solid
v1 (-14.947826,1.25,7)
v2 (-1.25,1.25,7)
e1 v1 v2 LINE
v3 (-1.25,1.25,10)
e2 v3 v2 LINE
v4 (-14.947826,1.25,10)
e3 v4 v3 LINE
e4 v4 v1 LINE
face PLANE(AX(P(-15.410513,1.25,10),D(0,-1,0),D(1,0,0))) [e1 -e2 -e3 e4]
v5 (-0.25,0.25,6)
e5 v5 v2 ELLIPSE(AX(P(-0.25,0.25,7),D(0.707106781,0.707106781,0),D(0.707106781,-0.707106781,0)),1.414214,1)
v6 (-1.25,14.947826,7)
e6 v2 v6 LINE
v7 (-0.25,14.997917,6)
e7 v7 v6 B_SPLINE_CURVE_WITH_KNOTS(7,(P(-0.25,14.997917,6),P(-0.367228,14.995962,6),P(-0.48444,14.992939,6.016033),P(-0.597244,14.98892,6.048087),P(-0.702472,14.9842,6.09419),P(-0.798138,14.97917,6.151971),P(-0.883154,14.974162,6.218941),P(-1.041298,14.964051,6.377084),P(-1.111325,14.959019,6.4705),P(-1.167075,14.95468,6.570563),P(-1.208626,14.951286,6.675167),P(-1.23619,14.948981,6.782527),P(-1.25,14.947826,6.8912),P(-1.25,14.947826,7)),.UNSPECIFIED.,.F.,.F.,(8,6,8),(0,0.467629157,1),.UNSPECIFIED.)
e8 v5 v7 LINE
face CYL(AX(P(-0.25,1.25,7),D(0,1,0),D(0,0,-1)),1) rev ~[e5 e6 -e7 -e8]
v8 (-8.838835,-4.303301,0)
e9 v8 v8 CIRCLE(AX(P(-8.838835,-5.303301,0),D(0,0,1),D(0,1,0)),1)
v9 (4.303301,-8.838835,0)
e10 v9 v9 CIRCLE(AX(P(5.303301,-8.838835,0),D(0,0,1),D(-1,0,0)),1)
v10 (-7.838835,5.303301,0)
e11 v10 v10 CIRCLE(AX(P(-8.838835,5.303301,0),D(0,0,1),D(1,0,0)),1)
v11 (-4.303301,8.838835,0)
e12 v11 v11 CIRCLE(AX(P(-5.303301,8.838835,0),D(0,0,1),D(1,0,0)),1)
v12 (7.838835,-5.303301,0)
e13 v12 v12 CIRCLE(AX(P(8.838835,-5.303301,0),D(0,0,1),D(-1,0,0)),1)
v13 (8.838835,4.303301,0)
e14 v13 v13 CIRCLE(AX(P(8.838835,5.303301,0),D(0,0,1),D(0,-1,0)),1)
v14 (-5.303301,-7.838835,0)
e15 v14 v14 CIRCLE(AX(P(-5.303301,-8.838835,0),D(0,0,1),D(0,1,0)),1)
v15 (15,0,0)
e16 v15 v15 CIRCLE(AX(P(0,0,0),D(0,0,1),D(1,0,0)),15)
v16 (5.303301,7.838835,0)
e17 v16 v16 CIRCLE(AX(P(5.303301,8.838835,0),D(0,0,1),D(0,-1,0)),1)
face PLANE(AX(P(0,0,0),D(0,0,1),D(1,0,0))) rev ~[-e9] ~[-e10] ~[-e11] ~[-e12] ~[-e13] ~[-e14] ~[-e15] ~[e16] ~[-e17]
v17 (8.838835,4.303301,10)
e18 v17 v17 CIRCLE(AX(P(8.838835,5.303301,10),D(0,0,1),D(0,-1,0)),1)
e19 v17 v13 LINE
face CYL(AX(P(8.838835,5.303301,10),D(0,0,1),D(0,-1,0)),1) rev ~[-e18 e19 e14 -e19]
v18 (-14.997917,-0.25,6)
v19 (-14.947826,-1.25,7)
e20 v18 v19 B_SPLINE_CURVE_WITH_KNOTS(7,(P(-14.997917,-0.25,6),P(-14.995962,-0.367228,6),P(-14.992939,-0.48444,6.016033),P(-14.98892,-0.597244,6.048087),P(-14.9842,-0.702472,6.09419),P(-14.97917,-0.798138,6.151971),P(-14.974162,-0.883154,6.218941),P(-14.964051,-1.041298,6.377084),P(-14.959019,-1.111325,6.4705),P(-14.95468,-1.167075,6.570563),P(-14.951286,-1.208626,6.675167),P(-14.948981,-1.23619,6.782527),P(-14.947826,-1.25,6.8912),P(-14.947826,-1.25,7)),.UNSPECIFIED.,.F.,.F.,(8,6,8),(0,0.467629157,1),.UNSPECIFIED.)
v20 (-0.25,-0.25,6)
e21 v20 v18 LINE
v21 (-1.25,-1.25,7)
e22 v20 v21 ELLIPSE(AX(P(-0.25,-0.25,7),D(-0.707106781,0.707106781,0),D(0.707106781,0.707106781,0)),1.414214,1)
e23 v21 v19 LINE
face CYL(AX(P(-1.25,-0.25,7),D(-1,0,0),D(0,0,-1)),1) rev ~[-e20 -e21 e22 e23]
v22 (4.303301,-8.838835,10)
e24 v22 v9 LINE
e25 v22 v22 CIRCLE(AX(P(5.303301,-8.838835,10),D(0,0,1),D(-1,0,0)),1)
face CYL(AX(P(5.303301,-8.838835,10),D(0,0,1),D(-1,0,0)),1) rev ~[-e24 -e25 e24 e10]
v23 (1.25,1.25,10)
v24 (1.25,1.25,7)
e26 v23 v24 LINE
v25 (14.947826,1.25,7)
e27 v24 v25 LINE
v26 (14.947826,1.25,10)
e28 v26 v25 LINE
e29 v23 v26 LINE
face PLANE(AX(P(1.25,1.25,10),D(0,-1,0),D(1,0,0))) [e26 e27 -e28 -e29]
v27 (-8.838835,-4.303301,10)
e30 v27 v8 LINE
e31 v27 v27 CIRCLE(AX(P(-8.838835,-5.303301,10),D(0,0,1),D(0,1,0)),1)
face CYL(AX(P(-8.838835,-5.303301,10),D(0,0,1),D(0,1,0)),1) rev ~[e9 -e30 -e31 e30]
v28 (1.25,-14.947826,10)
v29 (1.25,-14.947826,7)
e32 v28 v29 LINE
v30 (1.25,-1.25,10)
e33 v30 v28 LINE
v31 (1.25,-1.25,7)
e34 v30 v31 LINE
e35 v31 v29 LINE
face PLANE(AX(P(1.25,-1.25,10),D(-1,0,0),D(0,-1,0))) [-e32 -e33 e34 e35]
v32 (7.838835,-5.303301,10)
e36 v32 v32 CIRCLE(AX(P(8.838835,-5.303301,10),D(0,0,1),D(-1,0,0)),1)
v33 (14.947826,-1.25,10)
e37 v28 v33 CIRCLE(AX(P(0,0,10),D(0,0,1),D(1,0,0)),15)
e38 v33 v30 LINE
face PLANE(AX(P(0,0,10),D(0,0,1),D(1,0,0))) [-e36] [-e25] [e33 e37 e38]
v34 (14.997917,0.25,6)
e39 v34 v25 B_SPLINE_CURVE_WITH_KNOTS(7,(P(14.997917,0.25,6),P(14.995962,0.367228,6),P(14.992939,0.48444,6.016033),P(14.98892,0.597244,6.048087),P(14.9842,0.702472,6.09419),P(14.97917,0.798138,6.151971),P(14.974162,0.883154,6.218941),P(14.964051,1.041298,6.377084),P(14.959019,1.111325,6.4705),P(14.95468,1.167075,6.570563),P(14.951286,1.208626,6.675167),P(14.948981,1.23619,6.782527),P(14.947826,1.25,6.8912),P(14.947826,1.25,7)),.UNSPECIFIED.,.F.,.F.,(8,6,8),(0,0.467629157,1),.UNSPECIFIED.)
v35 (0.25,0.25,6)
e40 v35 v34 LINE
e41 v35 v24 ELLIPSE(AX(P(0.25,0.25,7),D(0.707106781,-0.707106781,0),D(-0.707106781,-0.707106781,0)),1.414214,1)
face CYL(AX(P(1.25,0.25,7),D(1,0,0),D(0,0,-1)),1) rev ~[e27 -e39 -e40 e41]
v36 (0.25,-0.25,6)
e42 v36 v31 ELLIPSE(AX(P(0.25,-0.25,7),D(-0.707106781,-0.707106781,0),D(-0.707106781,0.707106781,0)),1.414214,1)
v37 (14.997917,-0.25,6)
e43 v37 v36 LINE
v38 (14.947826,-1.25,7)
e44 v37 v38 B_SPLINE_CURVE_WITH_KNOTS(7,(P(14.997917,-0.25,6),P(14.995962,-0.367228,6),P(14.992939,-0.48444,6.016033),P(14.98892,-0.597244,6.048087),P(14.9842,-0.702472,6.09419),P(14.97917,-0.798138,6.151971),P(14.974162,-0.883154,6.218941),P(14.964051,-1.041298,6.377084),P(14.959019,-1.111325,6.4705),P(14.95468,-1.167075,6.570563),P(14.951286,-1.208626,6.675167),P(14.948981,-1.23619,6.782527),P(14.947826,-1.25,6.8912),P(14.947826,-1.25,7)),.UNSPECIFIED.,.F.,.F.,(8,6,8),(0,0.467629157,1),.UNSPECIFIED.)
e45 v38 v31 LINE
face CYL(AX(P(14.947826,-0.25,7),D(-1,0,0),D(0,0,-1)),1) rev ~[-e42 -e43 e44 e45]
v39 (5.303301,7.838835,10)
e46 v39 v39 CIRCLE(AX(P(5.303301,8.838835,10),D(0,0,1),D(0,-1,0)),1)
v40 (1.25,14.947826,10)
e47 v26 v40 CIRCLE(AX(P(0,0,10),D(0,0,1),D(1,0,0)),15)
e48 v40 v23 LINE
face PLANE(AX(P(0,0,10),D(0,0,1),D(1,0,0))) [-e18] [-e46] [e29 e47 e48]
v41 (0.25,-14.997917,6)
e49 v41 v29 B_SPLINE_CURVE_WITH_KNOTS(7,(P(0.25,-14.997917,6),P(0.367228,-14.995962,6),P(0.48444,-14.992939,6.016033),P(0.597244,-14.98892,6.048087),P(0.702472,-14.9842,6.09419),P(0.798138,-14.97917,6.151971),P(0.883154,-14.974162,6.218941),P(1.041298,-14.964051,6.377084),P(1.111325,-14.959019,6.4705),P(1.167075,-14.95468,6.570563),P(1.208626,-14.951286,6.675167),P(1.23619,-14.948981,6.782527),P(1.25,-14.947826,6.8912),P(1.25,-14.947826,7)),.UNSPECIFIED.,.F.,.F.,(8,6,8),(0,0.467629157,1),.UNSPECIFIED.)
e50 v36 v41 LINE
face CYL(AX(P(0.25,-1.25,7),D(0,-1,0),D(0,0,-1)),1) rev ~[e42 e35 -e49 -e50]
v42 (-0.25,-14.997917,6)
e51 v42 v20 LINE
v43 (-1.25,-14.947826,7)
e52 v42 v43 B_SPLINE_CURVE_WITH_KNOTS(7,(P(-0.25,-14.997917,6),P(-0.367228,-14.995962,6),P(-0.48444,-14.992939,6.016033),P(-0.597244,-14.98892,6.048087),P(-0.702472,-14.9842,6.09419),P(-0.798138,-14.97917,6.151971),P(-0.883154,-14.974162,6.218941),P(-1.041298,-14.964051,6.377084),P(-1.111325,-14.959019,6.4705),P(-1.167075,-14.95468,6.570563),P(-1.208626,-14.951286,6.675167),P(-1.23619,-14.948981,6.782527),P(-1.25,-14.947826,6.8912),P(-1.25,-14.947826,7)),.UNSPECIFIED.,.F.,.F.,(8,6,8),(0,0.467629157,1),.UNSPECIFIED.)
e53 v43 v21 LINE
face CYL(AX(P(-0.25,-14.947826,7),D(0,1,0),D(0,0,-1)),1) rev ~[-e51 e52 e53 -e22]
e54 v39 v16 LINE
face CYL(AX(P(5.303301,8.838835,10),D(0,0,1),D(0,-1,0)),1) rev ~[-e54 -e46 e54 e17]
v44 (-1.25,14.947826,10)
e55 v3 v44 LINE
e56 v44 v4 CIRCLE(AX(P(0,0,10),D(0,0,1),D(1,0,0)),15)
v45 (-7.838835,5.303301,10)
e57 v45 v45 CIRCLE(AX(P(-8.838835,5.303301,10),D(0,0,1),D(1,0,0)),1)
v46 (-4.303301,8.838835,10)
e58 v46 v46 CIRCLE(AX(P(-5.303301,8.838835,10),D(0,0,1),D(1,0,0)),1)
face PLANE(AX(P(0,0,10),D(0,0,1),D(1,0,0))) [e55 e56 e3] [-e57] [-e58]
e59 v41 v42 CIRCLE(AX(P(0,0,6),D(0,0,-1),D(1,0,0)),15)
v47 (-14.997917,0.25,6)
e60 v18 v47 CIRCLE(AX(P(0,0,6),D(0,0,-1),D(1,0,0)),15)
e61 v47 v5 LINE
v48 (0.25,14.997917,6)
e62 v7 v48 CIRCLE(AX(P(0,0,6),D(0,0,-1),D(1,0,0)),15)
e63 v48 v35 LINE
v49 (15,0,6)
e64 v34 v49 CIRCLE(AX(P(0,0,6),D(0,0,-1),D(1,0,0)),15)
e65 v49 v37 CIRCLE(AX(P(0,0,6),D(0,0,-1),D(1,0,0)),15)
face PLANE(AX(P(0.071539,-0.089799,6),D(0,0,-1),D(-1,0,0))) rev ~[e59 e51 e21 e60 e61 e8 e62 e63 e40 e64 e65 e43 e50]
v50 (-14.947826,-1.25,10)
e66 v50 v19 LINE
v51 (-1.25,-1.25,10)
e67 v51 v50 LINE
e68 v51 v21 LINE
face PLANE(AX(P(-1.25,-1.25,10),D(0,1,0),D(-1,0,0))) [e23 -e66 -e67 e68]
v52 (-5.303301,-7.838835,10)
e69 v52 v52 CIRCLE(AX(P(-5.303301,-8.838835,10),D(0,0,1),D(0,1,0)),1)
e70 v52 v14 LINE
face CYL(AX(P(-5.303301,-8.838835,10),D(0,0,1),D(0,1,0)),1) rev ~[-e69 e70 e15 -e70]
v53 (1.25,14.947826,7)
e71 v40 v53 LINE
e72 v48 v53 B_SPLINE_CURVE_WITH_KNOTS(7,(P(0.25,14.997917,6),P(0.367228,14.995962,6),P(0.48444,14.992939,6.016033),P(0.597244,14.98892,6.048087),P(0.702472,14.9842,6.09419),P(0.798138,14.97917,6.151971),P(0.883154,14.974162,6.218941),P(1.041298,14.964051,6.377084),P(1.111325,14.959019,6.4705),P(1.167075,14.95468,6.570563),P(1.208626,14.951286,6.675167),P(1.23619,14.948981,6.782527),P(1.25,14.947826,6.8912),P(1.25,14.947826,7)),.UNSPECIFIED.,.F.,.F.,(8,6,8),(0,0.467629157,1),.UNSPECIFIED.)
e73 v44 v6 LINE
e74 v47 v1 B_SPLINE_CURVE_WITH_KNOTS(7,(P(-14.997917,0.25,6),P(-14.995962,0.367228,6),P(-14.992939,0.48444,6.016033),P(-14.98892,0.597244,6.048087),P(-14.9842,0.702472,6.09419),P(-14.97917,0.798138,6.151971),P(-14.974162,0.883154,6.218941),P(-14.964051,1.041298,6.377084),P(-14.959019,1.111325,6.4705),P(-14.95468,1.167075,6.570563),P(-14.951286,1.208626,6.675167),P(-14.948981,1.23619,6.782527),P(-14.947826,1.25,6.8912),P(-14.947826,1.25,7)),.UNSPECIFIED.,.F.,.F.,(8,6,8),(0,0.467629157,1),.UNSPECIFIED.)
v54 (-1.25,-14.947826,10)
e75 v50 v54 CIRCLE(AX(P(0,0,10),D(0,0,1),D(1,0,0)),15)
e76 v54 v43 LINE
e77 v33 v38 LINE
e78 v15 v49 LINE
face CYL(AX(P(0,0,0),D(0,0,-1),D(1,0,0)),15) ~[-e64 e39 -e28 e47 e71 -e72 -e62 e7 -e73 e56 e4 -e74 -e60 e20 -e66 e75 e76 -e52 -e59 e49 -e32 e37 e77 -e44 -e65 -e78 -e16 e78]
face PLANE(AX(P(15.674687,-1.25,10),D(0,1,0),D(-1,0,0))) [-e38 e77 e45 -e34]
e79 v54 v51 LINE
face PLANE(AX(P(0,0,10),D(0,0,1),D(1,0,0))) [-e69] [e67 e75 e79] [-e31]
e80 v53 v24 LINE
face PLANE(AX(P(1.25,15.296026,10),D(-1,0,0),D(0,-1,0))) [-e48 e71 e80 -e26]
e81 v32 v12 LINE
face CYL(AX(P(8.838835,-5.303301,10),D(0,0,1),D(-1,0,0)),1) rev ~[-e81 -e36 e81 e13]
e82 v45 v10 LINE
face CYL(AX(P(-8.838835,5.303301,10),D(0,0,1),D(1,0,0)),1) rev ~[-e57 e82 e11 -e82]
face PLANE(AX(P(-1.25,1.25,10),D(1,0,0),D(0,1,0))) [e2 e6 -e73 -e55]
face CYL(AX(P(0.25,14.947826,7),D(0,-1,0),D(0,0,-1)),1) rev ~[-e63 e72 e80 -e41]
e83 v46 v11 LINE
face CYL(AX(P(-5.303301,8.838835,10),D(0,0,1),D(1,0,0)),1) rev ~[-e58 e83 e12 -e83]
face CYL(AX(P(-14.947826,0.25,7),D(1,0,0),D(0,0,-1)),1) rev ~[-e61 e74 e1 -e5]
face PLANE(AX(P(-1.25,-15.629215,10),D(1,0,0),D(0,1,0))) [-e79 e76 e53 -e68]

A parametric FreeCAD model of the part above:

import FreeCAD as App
import Part
import Sketcher


def edges_at(feature, points):
    """Names of the edges that pass closest to the given points."""
    edges = feature.Shape.Edges
    near = lambda p: min(range(len(edges)), key=lambda i: edges[i].distToShape(Part.Vertex(*p))[0])
    return sorted({f"Edge{near(p) + 1}" for p in points})


def add_polygon(sketch, points):
    """Adds a closed chain of lines whose ends are joined by coincident constraints."""
    first, n = sketch.GeometryCount, len(points)
    for a, b in zip(points, points[1:] + points[:1]):
        sketch.addGeometry(Part.LineSegment(App.Vector(*a, 0), App.Vector(*b, 0)), False)
    for i in range(n):
        sketch.addConstraint(Sketcher.Constraint("Coincident", first + i, 2, first + (i + 1) % n, 1))

doc = App.newDocument("Part")
body = doc.addObject("PartDesign::Body", "Body")

sketch1 = body.newObject("Sketcher::SketchObject", "Sketch")
sketch1.AttachmentSupport = (doc.getObject("XY_Plane"), [""])
sketch1.MapMode = "FlatFace"
sketch1.addGeometry(Part.Circle(App.Vector(0, 0, 0), App.Vector(0, 0, 1), 15), False)
sketch1.addConstraint([
    Sketcher.Constraint("Coincident", 0, 3, -1, 1),
    Sketcher.Constraint("Diameter", 0, 30.0),
])
pad1 = body.newObject("PartDesign::Pad", "Pad")
pad1.Profile = sketch1
pad1.Length = 10

sketch2 = body.newObject("Sketcher::SketchObject", "Sketch001")
sketch2.AttachmentSupport = (doc.getObject("XY_Plane"), [""])
sketch2.MapMode = "FlatFace"
sketch2.AttachmentOffset = App.Placement(App.Vector(0, 0, 10), App.Rotation())
add_polygon(sketch2, [(-1.25, 15.296026), (-1.25, 1.25), (-15.410513, 1.25), (-15.410513, -1.25), (-1.25, -1.25), (-1.25, -15.629215), (1.25, -15.629215), (1.25, -1.25), (15.674687, -1.25), (15.674687, 1.25), (1.25, 1.25), (1.25, 15.296026)])
sketch2.addConstraint([
    Sketcher.Constraint("Vertical", 0),
    Sketcher.Constraint("Horizontal", 1),
    Sketcher.Constraint("Vertical", 2),
    Sketcher.Constraint("Horizontal", 3),
    Sketcher.Constraint("Vertical", 4),
    Sketcher.Constraint("Horizontal", 5),
    Sketcher.Constraint("Vertical", 6),
    Sketcher.Constraint("Horizontal", 7),
    Sketcher.Constraint("Vertical", 8),
    Sketcher.Constraint("Horizontal", 9),
    Sketcher.Constraint("Vertical", 10),
    Sketcher.Constraint("Horizontal", 11),
    Sketcher.Constraint("Symmetric", 0, 2, 6, 2, -1, 1),
    Sketcher.Constraint("Symmetric", 3, 2, 9, 2, -1, 1),
    Sketcher.Constraint("Symmetric", 3, 2, 6, 2, -2),
    Sketcher.Constraint("Equal", 11, 2),
    Sketcher.Constraint("DistanceX", 5, 1, 5, 2, 2.5),
    Sketcher.Constraint("DistanceX", 1, 2, 1, 1, 14.160513),
    Sketcher.Constraint("DistanceX", 7, 1, 7, 2, 14.424687),
    Sketcher.Constraint("DistanceY", 0, 2, 0, 1, 14.046026),
    Sketcher.Constraint("DistanceY", 4, 2, 4, 1, 14.379215),
])
pocket1 = body.newObject("PartDesign::Pocket", "Pocket")
pocket1.Profile = sketch2
pocket1.Length = 4
doc.recompute()

fillet = body.newObject("PartDesign::Fillet", "Fillet")
fillet.Base = (pocket1, edges_at(pocket1, [
    (-8.099, 1.25, 6),
    (-1.25, 8.099, 6),
    (1.25, 8.099, 6),
    (8.099, 1.25, 6),
    (8.099, -1.25, 6),
    (1.25, -8.099, 6),
    (-1.25, -8.099, 6),
    (-8.099, -1.25, 6),
]))
fillet.Radius = 1

sketch3 = body.newObject("Sketcher::SketchObject", "Sketch002")
sketch3.AttachmentSupport = (doc.getObject("XY_Plane"), [""])
sketch3.MapMode = "FlatFace"
sketch3.AttachmentOffset = App.Placement(App.Vector(0, 0, 10), App.Rotation())
sketch3.addGeometry([
    Part.Circle(App.Vector(-5.303301, 8.838835, 0), App.Vector(0, 0, 1), 1),
    Part.Circle(App.Vector(-8.838835, 5.303301, 0), App.Vector(0, 0, 1), 1),
], False)
sketch3.addConstraint([
    Sketcher.Constraint("Equal", 0, 1),
    Sketcher.Constraint("Diameter", 0, 2.0),
    Sketcher.Constraint("DistanceX", 0, 3, -1, 1, 5.303301),
    Sketcher.Constraint("DistanceY", -1, 1, 1, 3, 5.303301),
    Sketcher.Constraint("DistanceY", -1, 1, 0, 3, 8.838835),
    Sketcher.Constraint("DistanceX", 1, 3, -1, 1, 8.838835),
])
pocket2 = body.newObject("PartDesign::Pocket", "Pocket001")
pocket2.Profile = sketch3
pocket2.Length = 10
doc.recompute()

polarpattern = body.newObject("PartDesign::PolarPattern", "PolarPattern")
polarpattern.Originals = [pocket2]
polarpattern.Axis = (doc.getObject("Z_Axis"), [""])
polarpattern.Angle = 360
polarpattern.Occurrences = 4
body.Tip = polarpattern

doc.recompute()
